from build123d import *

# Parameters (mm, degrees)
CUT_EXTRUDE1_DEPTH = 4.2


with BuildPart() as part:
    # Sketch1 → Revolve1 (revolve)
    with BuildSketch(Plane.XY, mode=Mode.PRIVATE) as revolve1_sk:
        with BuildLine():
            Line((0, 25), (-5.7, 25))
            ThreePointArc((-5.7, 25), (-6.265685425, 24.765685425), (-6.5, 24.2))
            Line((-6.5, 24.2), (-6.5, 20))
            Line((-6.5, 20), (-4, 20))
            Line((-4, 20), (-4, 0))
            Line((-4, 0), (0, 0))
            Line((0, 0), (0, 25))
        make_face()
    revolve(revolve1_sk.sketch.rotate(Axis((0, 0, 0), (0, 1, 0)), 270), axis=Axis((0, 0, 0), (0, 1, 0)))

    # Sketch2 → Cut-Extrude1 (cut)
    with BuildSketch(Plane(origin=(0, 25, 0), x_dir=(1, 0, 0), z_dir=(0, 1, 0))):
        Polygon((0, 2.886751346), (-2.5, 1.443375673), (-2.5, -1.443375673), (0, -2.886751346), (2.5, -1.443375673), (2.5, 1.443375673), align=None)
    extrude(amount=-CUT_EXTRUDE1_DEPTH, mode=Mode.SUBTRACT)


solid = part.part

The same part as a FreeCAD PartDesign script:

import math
import FreeCAD as App
import Part
import Sketcher
Q = App.Units.Quantity


def add_polygon(sketch, points):
    """Adds a closed chain of lines whose ends are joined by coincident constraints."""
    first, n = sketch.GeometryCount, len(points)
    for a, b in zip(points, points[1:] + points[:1]):
        sketch.addGeometry(Part.LineSegment(App.Vector(*a, 0), App.Vector(*b, 0)), False)
    for i in range(n):
        sketch.addConstraint(Sketcher.Constraint("Coincident", first + i, 2, first + (i + 1) % n, 1))

doc = App.newDocument("Part")
body = doc.addObject("PartDesign::Body", "Body")

sketch1 = body.newObject("Sketcher::SketchObject", "Sketch")
sketch1.AttachmentSupport = (doc.getObject("XY_Plane"), [""])
sketch1.MapMode = "FlatFace"
sketch1.addGeometry([
    Part.LineSegment(App.Vector(0, 25, 0), App.Vector(-5.7, 25, 0)),
    Part.ArcOfCircle(Part.Circle(App.Vector(-5.7, 24.2, 0), App.Vector(0, 0, 1), 0.8), math.radians(90), math.radians(180)),
    Part.LineSegment(App.Vector(-6.5, 24.2, 0), App.Vector(-6.5, 20, 0)),
    Part.LineSegment(App.Vector(-6.5, 20, 0), App.Vector(-4, 20, 0)),
    Part.LineSegment(App.Vector(-4, 20, 0), App.Vector(-4, 0, 0)),
    Part.LineSegment(App.Vector(-4, 0, 0), App.Vector(0, 0, 0)),
    Part.LineSegment(App.Vector(0, 0, 0), App.Vector(0, 25, 0)),
], False)
sketch1.addConstraint([
    Sketcher.Constraint("Tangent", 0, 2, 1, 1),
    Sketcher.Constraint("Tangent", 1, 2, 2, 1),
    Sketcher.Constraint("Coincident", 2, 2, 3, 1),
    Sketcher.Constraint("Coincident", 3, 2, 4, 1),
    Sketcher.Constraint("Coincident", 4, 2, 5, 1),
    Sketcher.Constraint("Coincident", 5, 2, 6, 1),
    Sketcher.Constraint("Coincident", 6, 2, 0, 1),
    Sketcher.Constraint("Horizontal", 0),
    Sketcher.Constraint("Vertical", 2),
    Sketcher.Constraint("Horizontal", 3),
    Sketcher.Constraint("Vertical", 4),
    Sketcher.Constraint("Horizontal", 5),
    Sketcher.Constraint("Vertical", 6),
    Sketcher.Constraint("Coincident", 5, 2, -1, 1),
    Sketcher.Constraint("Radius", 1, 0.8),
    Sketcher.Constraint("DistanceX", 5, 1, 5, 2, 4.0),
    Sketcher.Constraint("DistanceY", 4, 2, 4, 1, 20.0),
    Sketcher.Constraint("DistanceY", 6, 1, 6, 2, 25.0),
    Sketcher.Constraint("DistanceX", 0, 2, 0, 1, 5.7),
])
revolution = body.newObject("PartDesign::Revolution", "Revolution")
revolution.Profile = sketch1
revolution.ReferenceAxis = (sketch1, ["V_Axis"])
revolution.Angle = 360

sketch2 = body.newObject("Sketcher::SketchObject", "Sketch001")
sketch2.AttachmentSupport = (doc.getObject("XZ_Plane"), [""])
sketch2.MapMode = "FlatFace"
sketch2.AttachmentOffset = App.Placement(App.Vector(0, 0, -25), App.Rotation())
add_polygon(sketch2, [(0, -2.9), (-2.5, -1.4), (-2.5, 1.4), (0, 2.9), (2.5, 1.4), (2.5, -1.4)])
sketch2.addConstraint([
    Sketcher.Constraint("Vertical", 1),
    Sketcher.Constraint("Vertical", 4),
    Sketcher.Constraint("Symmetric", 0, 2, 3, 2, -1, 1),
    Sketcher.Constraint("Symmetric", 2, 2, 5, 2, -1, 1),
    Sketcher.Constraint("PointOnObject", 2, 2, -2),
    Sketcher.Constraint("Parallel", 2, 5),
    Sketcher.Constraint("Horizontal", 1, 2, 3, 2),
    Sketcher.Constraint("Angle", 0, Q("150 deg")),
    Sketcher.Constraint("DistanceX", 1, 2, 3, 2, 5.0),
    Sketcher.Constraint("DistanceY", 1, 1, 1, 2, 2.886751),
])
pocket1 = body.newObject("PartDesign::Pocket", "Pocket")
pocket1.Profile = sketch2
pocket1.Length = 4.2
pocket1.Reversed = True

doc.recompute()
